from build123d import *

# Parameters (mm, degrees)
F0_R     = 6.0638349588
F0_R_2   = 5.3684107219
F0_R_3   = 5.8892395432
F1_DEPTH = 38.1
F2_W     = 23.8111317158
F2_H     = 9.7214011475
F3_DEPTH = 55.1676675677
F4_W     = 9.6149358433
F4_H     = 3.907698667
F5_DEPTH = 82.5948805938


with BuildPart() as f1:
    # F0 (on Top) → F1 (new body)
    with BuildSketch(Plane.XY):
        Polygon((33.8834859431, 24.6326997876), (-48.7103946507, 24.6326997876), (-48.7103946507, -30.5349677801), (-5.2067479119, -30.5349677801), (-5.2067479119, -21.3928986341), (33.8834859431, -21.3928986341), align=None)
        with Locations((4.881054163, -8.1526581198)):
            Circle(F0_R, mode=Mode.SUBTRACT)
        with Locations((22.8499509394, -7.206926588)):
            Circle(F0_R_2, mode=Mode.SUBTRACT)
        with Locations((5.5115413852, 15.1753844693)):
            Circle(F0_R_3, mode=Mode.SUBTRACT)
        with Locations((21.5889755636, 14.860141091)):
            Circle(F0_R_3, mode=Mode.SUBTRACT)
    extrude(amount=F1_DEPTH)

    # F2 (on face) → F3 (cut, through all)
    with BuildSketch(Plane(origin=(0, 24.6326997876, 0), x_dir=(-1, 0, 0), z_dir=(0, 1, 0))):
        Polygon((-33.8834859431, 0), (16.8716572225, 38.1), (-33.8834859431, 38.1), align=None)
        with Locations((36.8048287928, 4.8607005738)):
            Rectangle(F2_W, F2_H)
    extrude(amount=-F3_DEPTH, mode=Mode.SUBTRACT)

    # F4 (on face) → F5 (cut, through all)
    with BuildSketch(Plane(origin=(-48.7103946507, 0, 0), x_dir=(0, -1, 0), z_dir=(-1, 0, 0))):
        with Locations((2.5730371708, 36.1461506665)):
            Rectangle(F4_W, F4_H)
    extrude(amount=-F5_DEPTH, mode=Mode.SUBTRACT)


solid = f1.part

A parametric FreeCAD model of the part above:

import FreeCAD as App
import Part
import Sketcher

V = App.Vector
Q = App.Units.Quantity


def add_polygon(sketch, points):
    """Adds a closed chain of lines whose ends are joined by coincident constraints."""
    first, n = sketch.GeometryCount, len(points)
    for a, b in zip(points, points[1:] + points[:1]):
        sketch.addGeometry(Part.LineSegment(App.Vector(*a, 0), App.Vector(*b, 0)), False)
    for i in range(n):
        sketch.addConstraint(Sketcher.Constraint("Coincident", first + i, 2, first + (i + 1) % n, 1))

doc = App.newDocument("Part")
body = doc.addObject("PartDesign::Body", "Body")

# Sketch on XY plane
sketch1 = body.newObject("Sketcher::SketchObject", "Sketch")
sketch1.AttachmentSupport = (doc.getObject("XY_Plane"), [""])
sketch1.MapMode = "FlatFace"
add_polygon(sketch1, [(34, 25), (-49, 25), (-49, -31), (-5, -31), (-5, -21), (34, -21)])  # lines 0-5
sketch1.addGeometry(Part.Circle(V(5, -8, 0), V(0, 0, 1), 6), False)  # 6
sketch1.addGeometry(Part.Circle(V(23, -7, 0), V(0, 0, 1), 5), False)  # 7
sketch1.addGeometry(Part.Circle(V(6, 15, 0), V(0, 0, 1), 6), False)  # 8
sketch1.addGeometry(Part.Circle(V(22, 15, 0), V(0, 0, 1), 6), False)  # 9
sketch1.addConstraint([
    Sketcher.Constraint("Horizontal", 0),
    Sketcher.Constraint("Vertical", 1),
    Sketcher.Constraint("Horizontal", 2),
    Sketcher.Constraint("Vertical", 3),
    Sketcher.Constraint("Horizontal", 4),
    Sketcher.Constraint("Vertical", 5),
    Sketcher.Constraint("Equal", 8, 9),
    Sketcher.Constraint("Diameter", 6, 12.12767),
    Sketcher.Constraint("Diameter", 7, 10.736821),
    Sketcher.Constraint("Diameter", 8, 11.778479),
    Sketcher.Constraint("DistanceY", 5, 1, 5, 2, 46.025598),
    Sketcher.Constraint("DistanceX", 0, 2, 0, 1, 82.593881),
    Sketcher.Constraint("DistanceY", 3, 1, 3, 2, 9.142069),
    Sketcher.Constraint("DistanceY", -1, 1, 0, 2, 24.6327),
    Sketcher.Constraint("DistanceY", 6, 3, 9, 3, 23.012799),
    Sketcher.Constraint("DistanceX", 2, 2, 7, 3, 28.056699),
    Sketcher.Constraint("DistanceX", 2, 1, 2, 2, 43.503647),
    Sketcher.Constraint("DistanceY", 6, 3, -1, 1, 8.152658),
    Sketcher.Constraint("DistanceX", -1, 1, 7, 3, 22.849951),
    Sketcher.Constraint("DistanceX", -1, 1, 8, 3, 5.511541),
    Sketcher.Constraint("DistanceY", 6, 3, 7, 3, 0.945732),
    Sketcher.Constraint("DistanceY", 7, 3, 8, 3, 22.382311),
    Sketcher.Constraint("DistanceX", 6, 3, 9, 3, 16.707921),
    Sketcher.Constraint("DistanceX", 0, 2, 6, 3, 53.591449),
])
pad1 = body.newObject("PartDesign::Pad", "Pad")
pad1.Profile = sketch1
pad1.Length = Q("1.5 in")

# Sketch on XZ plane
sketch2 = body.newObject("Sketcher::SketchObject", "Sketch001")
sketch2.AttachmentSupport = (doc.getObject("XZ_Plane"), [""])
sketch2.MapMode = "FlatFace"
sketch2.AttachmentOffset = App.Placement(V(0, 0, -24.6327), App.Rotation())
add_polygon(sketch2, [(34, 0), (-17, 38), (34, 38)])  # lines 0-2
add_polygon(sketch2, [(-25, 10), (-25, 0), (-49, 0), (-49, 10)])  # lines 3-6
sketch2.addConstraint([
    Sketcher.Constraint("Horizontal", 1),
    Sketcher.Constraint("Vertical", 2),
    Sketcher.Constraint("Vertical", 3),
    Sketcher.Constraint("Horizontal", 4),
    Sketcher.Constraint("Vertical", 5),
    Sketcher.Constraint("Horizontal", 6),
    Sketcher.Constraint("PointOnObject", 2, 2, -1),
    Sketcher.Constraint("PointOnObject", 3, 2, -1),
    Sketcher.Constraint("DistanceY", 2, 2, 2, 1, Q("1.5 in")),
    Sketcher.Constraint("DistanceY", 3, 2, 3, 1, 9.721401),
    Sketcher.Constraint("DistanceX", 4, 2, 4, 1, 23.811132),
    Sketcher.Constraint("Distance", 0, 63.46412),
    Sketcher.Constraint("DistanceX", 3, 2, 2, 2, 58.782749),
    Sketcher.Constraint("DistanceX", 0, 2, -1, 1, 16.871657),
])
pocket1 = body.newObject("PartDesign::Pocket", "Pocket")
pocket1.Profile = sketch2
pocket1.Type = "ThroughAll"
pocket1.Reversed = True

# Sketch on YZ plane
sketch3 = body.newObject("Sketcher::SketchObject", "Sketch002")
sketch3.AttachmentSupport = (doc.getObject("YZ_Plane"), [""])
sketch3.MapMode = "FlatFace"
sketch3.AttachmentOffset = App.Placement(V(0, 0, -48.710395), App.Rotation())
add_polygon(sketch3, [(2.2, 38.1), (2.2, 34.2), (-7.4, 34.2), (-7.4, 38.1)])  # lines 0-3
sketch3.addConstraint([
    Sketcher.Constraint("Vertical", 0),
    Sketcher.Constraint("Horizontal", 1),
    Sketcher.Constraint("Vertical", 2),
    Sketcher.Constraint("Horizontal", 3),
    Sketcher.Constraint("DistanceY", -1, 1, 2, 2, Q("1.5 in")),
    Sketcher.Constraint("DistanceY", 0, 2, 0, 1, 3.907699),
    Sketcher.Constraint("DistanceX", 1, 2, 1, 1, 9.614936),
    Sketcher.Constraint("DistanceX", -1, 1, 0, 2, 2.234431),
])
pocket2 = body.newObject("PartDesign::Pocket", "Pocket001")
pocket2.Profile = sketch3
pocket2.Type = "ThroughAll"
pocket2.Reversed = True

doc.recompute()
